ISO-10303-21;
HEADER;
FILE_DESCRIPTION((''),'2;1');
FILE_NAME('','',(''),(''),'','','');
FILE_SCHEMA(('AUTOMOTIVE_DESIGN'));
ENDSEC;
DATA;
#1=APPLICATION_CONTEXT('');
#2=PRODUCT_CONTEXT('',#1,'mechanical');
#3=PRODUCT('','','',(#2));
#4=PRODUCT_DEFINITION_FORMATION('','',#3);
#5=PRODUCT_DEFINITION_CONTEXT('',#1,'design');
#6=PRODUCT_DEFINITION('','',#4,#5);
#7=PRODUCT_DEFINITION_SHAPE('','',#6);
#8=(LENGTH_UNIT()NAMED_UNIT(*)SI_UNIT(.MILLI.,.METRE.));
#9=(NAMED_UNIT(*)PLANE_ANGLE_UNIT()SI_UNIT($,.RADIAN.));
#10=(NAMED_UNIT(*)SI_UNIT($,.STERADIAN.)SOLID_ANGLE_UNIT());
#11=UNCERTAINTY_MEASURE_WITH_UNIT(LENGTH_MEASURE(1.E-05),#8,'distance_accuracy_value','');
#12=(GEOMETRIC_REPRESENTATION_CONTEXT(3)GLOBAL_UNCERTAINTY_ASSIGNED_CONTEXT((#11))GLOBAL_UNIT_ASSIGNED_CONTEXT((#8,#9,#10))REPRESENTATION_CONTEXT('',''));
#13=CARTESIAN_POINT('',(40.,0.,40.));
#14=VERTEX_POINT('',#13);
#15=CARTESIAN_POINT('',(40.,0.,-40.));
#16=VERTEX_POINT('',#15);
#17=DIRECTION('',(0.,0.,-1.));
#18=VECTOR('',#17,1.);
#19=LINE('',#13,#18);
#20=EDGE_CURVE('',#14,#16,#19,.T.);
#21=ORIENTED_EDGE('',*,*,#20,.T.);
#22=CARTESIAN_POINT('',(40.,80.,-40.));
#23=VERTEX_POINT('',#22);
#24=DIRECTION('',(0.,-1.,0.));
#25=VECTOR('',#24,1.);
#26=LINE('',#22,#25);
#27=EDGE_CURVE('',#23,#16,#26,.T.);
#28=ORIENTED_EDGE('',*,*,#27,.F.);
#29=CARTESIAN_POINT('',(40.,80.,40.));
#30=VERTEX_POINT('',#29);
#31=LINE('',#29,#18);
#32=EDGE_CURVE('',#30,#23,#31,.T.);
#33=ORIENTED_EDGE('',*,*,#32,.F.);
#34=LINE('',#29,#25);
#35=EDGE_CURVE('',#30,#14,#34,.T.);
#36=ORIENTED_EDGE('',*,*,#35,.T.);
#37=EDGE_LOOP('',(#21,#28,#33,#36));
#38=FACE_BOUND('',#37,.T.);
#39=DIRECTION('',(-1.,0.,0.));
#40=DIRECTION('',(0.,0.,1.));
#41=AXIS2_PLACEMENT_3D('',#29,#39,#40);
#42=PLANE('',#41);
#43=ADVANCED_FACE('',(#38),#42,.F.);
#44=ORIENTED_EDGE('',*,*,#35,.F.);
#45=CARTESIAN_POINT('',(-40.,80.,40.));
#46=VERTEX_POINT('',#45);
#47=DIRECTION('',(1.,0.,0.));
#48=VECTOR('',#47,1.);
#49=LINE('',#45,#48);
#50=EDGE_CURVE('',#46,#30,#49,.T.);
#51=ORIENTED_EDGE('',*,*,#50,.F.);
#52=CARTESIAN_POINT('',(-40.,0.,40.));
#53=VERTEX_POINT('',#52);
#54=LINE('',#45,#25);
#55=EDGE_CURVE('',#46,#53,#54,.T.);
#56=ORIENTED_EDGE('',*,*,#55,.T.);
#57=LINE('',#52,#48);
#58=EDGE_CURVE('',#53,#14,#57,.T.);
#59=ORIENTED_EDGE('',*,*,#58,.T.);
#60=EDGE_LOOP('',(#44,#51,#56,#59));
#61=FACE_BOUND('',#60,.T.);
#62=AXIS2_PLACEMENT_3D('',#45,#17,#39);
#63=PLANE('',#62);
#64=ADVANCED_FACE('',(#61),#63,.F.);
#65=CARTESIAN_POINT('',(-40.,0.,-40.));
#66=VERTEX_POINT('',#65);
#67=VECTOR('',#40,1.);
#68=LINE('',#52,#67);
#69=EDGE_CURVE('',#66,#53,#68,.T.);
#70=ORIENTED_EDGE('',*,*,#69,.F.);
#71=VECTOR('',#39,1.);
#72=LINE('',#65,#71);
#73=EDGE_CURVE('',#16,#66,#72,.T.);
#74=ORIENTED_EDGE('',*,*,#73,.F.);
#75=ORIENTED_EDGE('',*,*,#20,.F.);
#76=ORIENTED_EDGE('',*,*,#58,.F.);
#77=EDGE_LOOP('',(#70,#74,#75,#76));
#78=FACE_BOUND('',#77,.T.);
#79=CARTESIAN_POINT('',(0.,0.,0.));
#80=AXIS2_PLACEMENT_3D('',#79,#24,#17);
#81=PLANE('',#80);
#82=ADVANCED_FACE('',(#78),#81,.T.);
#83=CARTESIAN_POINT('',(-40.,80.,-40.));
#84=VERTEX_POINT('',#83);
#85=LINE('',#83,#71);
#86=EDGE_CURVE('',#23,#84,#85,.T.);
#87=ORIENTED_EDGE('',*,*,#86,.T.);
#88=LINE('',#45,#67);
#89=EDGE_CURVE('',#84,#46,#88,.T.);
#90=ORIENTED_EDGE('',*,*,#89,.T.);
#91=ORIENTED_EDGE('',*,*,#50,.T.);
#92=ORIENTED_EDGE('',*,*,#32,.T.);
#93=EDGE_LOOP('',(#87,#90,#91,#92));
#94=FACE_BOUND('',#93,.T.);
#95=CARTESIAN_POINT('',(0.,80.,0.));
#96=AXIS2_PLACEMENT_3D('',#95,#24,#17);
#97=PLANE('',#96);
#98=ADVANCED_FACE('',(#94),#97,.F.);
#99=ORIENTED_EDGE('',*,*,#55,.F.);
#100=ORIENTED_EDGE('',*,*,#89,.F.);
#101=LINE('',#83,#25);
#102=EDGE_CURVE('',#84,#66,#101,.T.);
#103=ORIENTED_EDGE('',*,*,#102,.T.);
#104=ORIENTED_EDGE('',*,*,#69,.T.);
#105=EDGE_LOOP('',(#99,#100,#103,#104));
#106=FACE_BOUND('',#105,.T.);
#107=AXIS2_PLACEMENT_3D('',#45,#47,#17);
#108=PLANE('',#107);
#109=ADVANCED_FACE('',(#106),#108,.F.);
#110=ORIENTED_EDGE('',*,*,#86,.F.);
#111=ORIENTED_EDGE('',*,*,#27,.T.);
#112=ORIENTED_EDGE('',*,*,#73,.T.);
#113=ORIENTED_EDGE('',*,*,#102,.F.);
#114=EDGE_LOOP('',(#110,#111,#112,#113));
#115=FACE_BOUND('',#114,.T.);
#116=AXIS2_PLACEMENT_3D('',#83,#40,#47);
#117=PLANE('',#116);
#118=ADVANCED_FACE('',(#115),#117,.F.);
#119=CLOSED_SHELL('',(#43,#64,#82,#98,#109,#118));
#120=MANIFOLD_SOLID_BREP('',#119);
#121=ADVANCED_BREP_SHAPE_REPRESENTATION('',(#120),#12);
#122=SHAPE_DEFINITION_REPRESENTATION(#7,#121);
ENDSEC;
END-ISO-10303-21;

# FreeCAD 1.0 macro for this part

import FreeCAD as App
import Part
import Sketcher
Q = App.Units.Quantity


def add_polygon(sketch, points):
    """Adds a closed chain of lines whose ends are joined by coincident constraints."""
    first, n = sketch.GeometryCount, len(points)
    for a, b in zip(points, points[1:] + points[:1]):
        sketch.addGeometry(Part.LineSegment(App.Vector(*a, 0), App.Vector(*b, 0)), False)
    for i in range(n):
        sketch.addConstraint(Sketcher.Constraint("Coincident", first + i, 2, first + (i + 1) % n, 1))

doc = App.newDocument("Part")
body = doc.addObject("PartDesign::Body", "Body")

sketch1 = doc.addObject("Sketcher::SketchObject", "Sketch")
body.addObject(sketch1)
sketch1.AttachmentSupport = (doc.XZ_Plane, [""])
sketch1.MapMode = "FlatFace"
add_polygon(sketch1, [(-40, -40), (-40, 40), (40, 40), (40, -40)])
sketch1.addConstraint(Sketcher.Constraint("Vertical", 0))
sketch1.addConstraint(Sketcher.Constraint("Horizontal", 1))
sketch1.addConstraint(Sketcher.Constraint("Vertical", 2))
sketch1.addConstraint(Sketcher.Constraint("Horizontal", 3))
sketch1.addConstraint(Sketcher.Constraint("Symmetric", 0, 2, 2, 2, -1, 1))
sketch1.addConstraint(Sketcher.Constraint("Equal", 3, 0))
sketch1.addConstraint(Sketcher.Constraint("DistanceX", 1, 1, 1, 2, Q("80 mm")))
pad1 = doc.addObject("PartDesign::Pad", "Pad")
body.addObject(pad1)
pad1.Profile = sketch1
pad1.Length = 80
pad1.Reversed = True

doc.recompute()
